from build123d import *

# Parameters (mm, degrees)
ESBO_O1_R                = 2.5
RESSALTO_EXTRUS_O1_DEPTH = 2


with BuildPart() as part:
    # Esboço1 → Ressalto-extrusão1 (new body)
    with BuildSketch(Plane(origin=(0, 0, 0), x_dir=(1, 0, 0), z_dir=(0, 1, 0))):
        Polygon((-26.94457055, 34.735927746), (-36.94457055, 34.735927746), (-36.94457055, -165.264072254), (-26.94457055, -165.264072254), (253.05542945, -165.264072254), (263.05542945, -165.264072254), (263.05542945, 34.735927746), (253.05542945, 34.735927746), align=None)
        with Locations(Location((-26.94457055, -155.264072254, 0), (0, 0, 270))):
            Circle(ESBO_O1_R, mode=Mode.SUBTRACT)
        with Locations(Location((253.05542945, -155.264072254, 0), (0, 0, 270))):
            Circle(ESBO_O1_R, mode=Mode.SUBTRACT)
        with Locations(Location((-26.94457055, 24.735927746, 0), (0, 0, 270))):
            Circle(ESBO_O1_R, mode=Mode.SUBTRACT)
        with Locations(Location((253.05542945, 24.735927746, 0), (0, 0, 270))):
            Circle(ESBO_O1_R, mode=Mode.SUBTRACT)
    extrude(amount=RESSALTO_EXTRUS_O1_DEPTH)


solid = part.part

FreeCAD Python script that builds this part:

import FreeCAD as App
import Part
import Sketcher

V = App.Vector
Q = App.Units.Quantity


def add_polygon(sketch, points):
    """Adds a closed chain of lines whose ends are joined by coincident constraints."""
    first, n = sketch.GeometryCount, len(points)
    for a, b in zip(points, points[1:] + points[:1]):
        sketch.addGeometry(Part.LineSegment(App.Vector(*a, 0), App.Vector(*b, 0)), False)
    for i in range(n):
        sketch.addConstraint(Sketcher.Constraint("Coincident", first + i, 2, first + (i + 1) % n, 1))

doc = App.newDocument("Part")
body = doc.addObject("PartDesign::Body", "Body")

# Sketch on XZ plane
sketch1 = body.newObject("Sketcher::SketchObject", "Sketch")
sketch1.AttachmentSupport = (doc.getObject("XZ_Plane"), [""])
sketch1.MapMode = "FlatFace"
add_polygon(sketch1, [(-36.9, -34.7), (-36.9, 165.3), (263.1, 165.3), (263.1, -34.7)])  # lines 0-3
sketch1.addGeometry(Part.Circle(V(-26.9, 155.3, 0), V(0, 0, 1), 2.5), False)  # 4
sketch1.addGeometry(Part.Circle(V(253.1, 155.3, 0), V(0, 0, 1), 2.5), False)  # 5
sketch1.addGeometry(Part.Circle(V(-26.9, -24.7, 0), V(0, 0, 1), 2.5), False)  # 6
sketch1.addGeometry(Part.Circle(V(253.1, -24.7, 0), V(0, 0, 1), 2.5), False)  # 7
sketch1.addConstraint(Sketcher.Constraint("Vertical", 0))
sketch1.addConstraint(Sketcher.Constraint("Horizontal", 1))
sketch1.addConstraint(Sketcher.Constraint("Vertical", 2))
sketch1.addConstraint(Sketcher.Constraint("Horizontal", 3))
sketch1.addConstraint(Sketcher.Constraint("Equal", 4, 5))
sketch1.addConstraint(Sketcher.Constraint("Equal", 5, 6))
sketch1.addConstraint(Sketcher.Constraint("Equal", 6, 7))
sketch1.addConstraint(Sketcher.Constraint("Horizontal", 4, 3, 5, 3))
sketch1.addConstraint(Sketcher.Constraint("Horizontal", 6, 3, 7, 3))
sketch1.addConstraint(Sketcher.Constraint("Vertical", 4, 3, 6, 3))
sketch1.addConstraint(Sketcher.Constraint("Vertical", 5, 3, 7, 3))
sketch1.addConstraint(Sketcher.Constraint("Diameter", 4, Q("5 mm")))
sketch1.addConstraint(Sketcher.Constraint("DistanceX", 1, 1, 1, 2, Q("300 mm")))
sketch1.addConstraint(Sketcher.Constraint("DistanceY", 0, 1, 0, 2, Q("200 mm")))
sketch1.addConstraint(Sketcher.Constraint("DistanceX", 4, 3, 5, 3, Q("280 mm")))
sketch1.addConstraint(Sketcher.Constraint("DistanceY", 6, 3, 4, 3, Q("180 mm")))
sketch1.addConstraint(Sketcher.Constraint("DistanceX", 0, 2, 4, 3, Q("10 mm")))
sketch1.addConstraint(Sketcher.Constraint("DistanceY", 4, 3, 0, 2, Q("10 mm")))
sketch1.addConstraint(Sketcher.Constraint("DistanceX", 4, 3, -1, 1, Q("26.944571 mm")))
sketch1.addConstraint(Sketcher.Constraint("DistanceY", -1, 1, 4, 3, Q("155.264072 mm")))
pad1 = body.newObject("PartDesign::Pad", "Pad")
pad1.Profile = sketch1
pad1.Length = 2
pad1.Reversed = True

doc.recompute()
